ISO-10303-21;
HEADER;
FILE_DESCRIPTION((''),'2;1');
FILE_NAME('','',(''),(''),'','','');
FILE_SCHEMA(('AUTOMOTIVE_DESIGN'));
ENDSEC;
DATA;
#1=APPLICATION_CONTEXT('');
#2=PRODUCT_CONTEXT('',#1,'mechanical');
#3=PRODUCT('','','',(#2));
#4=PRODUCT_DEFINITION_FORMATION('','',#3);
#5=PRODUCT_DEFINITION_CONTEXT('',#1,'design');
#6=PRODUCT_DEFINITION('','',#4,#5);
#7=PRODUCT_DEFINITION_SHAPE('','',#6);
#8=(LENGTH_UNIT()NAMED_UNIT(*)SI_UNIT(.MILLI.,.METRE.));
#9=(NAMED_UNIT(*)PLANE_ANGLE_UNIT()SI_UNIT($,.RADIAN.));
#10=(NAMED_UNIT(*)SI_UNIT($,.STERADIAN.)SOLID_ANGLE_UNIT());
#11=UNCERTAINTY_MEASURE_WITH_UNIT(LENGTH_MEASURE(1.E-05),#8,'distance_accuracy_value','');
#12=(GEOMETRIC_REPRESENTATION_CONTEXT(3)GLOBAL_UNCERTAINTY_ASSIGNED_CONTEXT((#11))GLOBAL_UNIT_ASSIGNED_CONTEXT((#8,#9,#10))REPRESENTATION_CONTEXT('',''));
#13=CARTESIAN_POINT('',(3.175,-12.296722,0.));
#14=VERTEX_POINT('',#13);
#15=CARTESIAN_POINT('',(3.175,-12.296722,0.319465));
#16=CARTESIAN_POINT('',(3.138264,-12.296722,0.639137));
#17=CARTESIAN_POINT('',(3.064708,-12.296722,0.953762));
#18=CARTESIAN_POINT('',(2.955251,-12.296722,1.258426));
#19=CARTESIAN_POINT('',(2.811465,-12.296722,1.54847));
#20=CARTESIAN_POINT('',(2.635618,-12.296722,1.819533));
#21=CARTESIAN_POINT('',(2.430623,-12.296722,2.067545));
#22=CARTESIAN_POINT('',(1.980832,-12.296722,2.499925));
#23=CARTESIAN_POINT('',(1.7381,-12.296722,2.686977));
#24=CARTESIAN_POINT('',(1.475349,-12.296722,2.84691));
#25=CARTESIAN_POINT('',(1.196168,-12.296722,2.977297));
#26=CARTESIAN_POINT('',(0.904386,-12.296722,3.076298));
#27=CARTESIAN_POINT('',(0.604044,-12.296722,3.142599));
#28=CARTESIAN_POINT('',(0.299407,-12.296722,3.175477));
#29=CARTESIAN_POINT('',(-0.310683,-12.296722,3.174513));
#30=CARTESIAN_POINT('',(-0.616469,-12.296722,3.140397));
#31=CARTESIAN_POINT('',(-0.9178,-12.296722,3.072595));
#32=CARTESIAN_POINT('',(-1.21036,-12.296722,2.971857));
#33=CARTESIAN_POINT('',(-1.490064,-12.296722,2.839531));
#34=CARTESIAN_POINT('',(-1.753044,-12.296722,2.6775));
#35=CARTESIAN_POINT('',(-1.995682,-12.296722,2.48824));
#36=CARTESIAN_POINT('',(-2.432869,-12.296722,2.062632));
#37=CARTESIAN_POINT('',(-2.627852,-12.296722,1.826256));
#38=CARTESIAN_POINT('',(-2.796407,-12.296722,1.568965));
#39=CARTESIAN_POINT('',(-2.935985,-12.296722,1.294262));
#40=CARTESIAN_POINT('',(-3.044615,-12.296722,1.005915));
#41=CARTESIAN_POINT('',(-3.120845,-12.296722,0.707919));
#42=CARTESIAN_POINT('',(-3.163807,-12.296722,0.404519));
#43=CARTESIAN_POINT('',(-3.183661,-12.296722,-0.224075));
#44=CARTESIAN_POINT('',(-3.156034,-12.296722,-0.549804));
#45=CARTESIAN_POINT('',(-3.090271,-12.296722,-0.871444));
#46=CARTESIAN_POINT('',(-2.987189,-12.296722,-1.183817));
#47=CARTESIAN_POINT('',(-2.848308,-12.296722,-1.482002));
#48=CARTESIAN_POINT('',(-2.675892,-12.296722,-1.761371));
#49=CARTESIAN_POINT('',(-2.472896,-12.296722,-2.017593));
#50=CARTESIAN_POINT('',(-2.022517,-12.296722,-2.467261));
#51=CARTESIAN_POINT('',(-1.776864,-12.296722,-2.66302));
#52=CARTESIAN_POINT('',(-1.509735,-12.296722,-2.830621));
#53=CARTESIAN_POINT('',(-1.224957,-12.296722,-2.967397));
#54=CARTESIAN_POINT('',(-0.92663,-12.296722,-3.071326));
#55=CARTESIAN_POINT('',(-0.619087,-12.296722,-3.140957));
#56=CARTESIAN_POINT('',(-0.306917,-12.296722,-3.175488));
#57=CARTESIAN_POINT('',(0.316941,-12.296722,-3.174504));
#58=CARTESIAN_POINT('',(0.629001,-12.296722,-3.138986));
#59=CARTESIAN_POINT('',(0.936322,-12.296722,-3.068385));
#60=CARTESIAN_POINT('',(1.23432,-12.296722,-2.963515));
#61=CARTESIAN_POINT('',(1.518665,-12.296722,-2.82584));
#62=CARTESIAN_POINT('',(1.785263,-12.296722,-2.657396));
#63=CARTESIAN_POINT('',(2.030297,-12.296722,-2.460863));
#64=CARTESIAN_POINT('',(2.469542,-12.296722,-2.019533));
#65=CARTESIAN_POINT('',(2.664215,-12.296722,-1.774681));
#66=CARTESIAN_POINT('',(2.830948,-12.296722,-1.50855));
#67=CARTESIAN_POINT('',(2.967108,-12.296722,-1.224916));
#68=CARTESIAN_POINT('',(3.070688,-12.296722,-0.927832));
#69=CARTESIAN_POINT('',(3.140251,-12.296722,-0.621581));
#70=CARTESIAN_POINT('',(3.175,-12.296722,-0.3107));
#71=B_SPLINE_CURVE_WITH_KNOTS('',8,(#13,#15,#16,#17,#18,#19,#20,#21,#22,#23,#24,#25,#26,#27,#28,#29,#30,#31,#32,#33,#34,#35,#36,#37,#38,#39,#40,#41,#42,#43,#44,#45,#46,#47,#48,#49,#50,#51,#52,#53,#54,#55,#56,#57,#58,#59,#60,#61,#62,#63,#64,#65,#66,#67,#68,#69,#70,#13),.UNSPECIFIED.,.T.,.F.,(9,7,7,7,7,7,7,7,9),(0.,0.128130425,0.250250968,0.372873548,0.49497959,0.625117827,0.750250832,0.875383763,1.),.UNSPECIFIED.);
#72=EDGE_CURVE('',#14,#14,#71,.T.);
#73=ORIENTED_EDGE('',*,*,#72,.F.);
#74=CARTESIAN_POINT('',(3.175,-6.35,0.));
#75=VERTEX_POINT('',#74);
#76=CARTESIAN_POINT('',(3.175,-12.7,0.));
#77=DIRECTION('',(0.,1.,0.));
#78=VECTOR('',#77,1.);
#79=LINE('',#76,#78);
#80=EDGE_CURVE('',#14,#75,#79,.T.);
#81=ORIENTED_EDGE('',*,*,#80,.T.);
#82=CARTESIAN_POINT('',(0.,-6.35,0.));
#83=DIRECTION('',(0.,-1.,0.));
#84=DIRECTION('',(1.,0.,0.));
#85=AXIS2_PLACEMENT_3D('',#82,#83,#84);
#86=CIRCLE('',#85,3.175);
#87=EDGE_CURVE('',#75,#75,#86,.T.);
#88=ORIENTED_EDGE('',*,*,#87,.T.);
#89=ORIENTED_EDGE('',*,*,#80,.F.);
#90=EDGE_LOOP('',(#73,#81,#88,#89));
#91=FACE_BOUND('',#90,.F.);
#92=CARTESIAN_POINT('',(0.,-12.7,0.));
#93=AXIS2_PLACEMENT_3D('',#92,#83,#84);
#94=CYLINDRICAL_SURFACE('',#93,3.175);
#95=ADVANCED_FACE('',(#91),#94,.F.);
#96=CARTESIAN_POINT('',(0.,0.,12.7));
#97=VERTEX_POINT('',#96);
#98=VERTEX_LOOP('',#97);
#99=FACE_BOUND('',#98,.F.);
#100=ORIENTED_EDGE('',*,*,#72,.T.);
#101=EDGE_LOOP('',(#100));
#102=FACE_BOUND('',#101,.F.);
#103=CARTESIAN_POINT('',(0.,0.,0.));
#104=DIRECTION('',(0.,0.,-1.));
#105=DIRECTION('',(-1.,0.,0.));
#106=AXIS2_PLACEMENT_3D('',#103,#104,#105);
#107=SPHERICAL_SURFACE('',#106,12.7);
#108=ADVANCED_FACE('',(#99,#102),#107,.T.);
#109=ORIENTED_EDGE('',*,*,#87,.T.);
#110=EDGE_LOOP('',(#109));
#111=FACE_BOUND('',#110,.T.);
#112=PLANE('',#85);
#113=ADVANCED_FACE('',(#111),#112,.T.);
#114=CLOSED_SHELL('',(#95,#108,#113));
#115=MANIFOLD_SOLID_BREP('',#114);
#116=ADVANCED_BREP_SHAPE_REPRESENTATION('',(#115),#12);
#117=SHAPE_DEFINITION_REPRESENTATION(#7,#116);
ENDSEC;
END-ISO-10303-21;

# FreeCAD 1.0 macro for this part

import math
import FreeCAD as App
import Part
import Sketcher

V = App.Vector
Q = App.Units.Quantity

doc = App.newDocument("Part")
body = doc.addObject("PartDesign::Body", "Body")

# Sketch on XZ plane
sketch1 = body.newObject("Sketcher::SketchObject", "Sketch")
sketch1.AttachmentSupport = (doc.getObject("XZ_Plane"), [""])
sketch1.MapMode = "FlatFace"
sketch1.addGeometry([
    Part.LineSegment(V(0, -13, 0), V(0, 13, 0)),
    Part.ArcOfCircle(Part.Circle(V(0, 0, 0), V(0, 0, 1), 13), math.radians(90), math.radians(270)),
], False)
sketch1.addConstraint([
    Sketcher.Constraint("Coincident", 0, 1, 1, 2),
    Sketcher.Constraint("Coincident", 1, 1, 0, 2),
    Sketcher.Constraint("Vertical", 0),
    Sketcher.Constraint("Coincident", 1, 3, -1, 1),
    Sketcher.Constraint("PointOnObject", 0, 1, -2),
    Sketcher.Constraint("Radius", 1, Q("0.5 in")),
])
revolution = body.newObject("PartDesign::Revolution", "Revolution")
revolution.Profile = sketch1
revolution.ReferenceAxis = (sketch1, ["V_Axis"])
revolution.Angle = 360

# Sketch on XZ plane
sketch2 = body.newObject("Sketcher::SketchObject", "Sketch001")
sketch2.AttachmentSupport = (doc.getObject("XZ_Plane"), [""])
sketch2.MapMode = "FlatFace"
sketch2.AttachmentOffset = App.Placement(V(0, 0, 0.5 * 25.4), App.Rotation())
sketch2.addGeometry(Part.Circle(V(0, 0, 0), V(0, 0, 1), 3.2), False)
sketch2.addConstraint([
    Sketcher.Constraint("Coincident", 0, 3, -1, 1),
    Sketcher.Constraint("Diameter", 0, Q("0.25 in")),
])
pocket1 = body.newObject("PartDesign::Pocket", "Pocket")
pocket1.Profile = sketch2
pocket1.Length = Q("0.25 in")
body2 = doc.addObject("PartDesign::Body", "Body001")

# Sketch on XZ plane
sketch3 = body2.newObject("Sketcher::SketchObject", "Sketch002")
sketch3.AttachmentSupport = (doc.getObject("XZ_Plane001"), [""])
sketch3.MapMode = "FlatFace"
sketch3.AttachmentOffset = App.Placement(V(0, 0, -0.5 * 25.4), App.Rotation())
sketch3.addGeometry(Part.Circle(V(0, 0, 0), V(0, 0, 1), 3.2), False)
sketch3.addConstraint([
    Sketcher.Constraint("Coincident", 0, 3, -1, 1),
    Sketcher.Constraint("Diameter", 0, Q("0.25 in")),
])
pad1 = body2.newObject("PartDesign::Pad", "Pad")
pad1.Profile = sketch3
pad1.Length = Q("0.375 in")
body2.Visibility = False

doc.recompute()
